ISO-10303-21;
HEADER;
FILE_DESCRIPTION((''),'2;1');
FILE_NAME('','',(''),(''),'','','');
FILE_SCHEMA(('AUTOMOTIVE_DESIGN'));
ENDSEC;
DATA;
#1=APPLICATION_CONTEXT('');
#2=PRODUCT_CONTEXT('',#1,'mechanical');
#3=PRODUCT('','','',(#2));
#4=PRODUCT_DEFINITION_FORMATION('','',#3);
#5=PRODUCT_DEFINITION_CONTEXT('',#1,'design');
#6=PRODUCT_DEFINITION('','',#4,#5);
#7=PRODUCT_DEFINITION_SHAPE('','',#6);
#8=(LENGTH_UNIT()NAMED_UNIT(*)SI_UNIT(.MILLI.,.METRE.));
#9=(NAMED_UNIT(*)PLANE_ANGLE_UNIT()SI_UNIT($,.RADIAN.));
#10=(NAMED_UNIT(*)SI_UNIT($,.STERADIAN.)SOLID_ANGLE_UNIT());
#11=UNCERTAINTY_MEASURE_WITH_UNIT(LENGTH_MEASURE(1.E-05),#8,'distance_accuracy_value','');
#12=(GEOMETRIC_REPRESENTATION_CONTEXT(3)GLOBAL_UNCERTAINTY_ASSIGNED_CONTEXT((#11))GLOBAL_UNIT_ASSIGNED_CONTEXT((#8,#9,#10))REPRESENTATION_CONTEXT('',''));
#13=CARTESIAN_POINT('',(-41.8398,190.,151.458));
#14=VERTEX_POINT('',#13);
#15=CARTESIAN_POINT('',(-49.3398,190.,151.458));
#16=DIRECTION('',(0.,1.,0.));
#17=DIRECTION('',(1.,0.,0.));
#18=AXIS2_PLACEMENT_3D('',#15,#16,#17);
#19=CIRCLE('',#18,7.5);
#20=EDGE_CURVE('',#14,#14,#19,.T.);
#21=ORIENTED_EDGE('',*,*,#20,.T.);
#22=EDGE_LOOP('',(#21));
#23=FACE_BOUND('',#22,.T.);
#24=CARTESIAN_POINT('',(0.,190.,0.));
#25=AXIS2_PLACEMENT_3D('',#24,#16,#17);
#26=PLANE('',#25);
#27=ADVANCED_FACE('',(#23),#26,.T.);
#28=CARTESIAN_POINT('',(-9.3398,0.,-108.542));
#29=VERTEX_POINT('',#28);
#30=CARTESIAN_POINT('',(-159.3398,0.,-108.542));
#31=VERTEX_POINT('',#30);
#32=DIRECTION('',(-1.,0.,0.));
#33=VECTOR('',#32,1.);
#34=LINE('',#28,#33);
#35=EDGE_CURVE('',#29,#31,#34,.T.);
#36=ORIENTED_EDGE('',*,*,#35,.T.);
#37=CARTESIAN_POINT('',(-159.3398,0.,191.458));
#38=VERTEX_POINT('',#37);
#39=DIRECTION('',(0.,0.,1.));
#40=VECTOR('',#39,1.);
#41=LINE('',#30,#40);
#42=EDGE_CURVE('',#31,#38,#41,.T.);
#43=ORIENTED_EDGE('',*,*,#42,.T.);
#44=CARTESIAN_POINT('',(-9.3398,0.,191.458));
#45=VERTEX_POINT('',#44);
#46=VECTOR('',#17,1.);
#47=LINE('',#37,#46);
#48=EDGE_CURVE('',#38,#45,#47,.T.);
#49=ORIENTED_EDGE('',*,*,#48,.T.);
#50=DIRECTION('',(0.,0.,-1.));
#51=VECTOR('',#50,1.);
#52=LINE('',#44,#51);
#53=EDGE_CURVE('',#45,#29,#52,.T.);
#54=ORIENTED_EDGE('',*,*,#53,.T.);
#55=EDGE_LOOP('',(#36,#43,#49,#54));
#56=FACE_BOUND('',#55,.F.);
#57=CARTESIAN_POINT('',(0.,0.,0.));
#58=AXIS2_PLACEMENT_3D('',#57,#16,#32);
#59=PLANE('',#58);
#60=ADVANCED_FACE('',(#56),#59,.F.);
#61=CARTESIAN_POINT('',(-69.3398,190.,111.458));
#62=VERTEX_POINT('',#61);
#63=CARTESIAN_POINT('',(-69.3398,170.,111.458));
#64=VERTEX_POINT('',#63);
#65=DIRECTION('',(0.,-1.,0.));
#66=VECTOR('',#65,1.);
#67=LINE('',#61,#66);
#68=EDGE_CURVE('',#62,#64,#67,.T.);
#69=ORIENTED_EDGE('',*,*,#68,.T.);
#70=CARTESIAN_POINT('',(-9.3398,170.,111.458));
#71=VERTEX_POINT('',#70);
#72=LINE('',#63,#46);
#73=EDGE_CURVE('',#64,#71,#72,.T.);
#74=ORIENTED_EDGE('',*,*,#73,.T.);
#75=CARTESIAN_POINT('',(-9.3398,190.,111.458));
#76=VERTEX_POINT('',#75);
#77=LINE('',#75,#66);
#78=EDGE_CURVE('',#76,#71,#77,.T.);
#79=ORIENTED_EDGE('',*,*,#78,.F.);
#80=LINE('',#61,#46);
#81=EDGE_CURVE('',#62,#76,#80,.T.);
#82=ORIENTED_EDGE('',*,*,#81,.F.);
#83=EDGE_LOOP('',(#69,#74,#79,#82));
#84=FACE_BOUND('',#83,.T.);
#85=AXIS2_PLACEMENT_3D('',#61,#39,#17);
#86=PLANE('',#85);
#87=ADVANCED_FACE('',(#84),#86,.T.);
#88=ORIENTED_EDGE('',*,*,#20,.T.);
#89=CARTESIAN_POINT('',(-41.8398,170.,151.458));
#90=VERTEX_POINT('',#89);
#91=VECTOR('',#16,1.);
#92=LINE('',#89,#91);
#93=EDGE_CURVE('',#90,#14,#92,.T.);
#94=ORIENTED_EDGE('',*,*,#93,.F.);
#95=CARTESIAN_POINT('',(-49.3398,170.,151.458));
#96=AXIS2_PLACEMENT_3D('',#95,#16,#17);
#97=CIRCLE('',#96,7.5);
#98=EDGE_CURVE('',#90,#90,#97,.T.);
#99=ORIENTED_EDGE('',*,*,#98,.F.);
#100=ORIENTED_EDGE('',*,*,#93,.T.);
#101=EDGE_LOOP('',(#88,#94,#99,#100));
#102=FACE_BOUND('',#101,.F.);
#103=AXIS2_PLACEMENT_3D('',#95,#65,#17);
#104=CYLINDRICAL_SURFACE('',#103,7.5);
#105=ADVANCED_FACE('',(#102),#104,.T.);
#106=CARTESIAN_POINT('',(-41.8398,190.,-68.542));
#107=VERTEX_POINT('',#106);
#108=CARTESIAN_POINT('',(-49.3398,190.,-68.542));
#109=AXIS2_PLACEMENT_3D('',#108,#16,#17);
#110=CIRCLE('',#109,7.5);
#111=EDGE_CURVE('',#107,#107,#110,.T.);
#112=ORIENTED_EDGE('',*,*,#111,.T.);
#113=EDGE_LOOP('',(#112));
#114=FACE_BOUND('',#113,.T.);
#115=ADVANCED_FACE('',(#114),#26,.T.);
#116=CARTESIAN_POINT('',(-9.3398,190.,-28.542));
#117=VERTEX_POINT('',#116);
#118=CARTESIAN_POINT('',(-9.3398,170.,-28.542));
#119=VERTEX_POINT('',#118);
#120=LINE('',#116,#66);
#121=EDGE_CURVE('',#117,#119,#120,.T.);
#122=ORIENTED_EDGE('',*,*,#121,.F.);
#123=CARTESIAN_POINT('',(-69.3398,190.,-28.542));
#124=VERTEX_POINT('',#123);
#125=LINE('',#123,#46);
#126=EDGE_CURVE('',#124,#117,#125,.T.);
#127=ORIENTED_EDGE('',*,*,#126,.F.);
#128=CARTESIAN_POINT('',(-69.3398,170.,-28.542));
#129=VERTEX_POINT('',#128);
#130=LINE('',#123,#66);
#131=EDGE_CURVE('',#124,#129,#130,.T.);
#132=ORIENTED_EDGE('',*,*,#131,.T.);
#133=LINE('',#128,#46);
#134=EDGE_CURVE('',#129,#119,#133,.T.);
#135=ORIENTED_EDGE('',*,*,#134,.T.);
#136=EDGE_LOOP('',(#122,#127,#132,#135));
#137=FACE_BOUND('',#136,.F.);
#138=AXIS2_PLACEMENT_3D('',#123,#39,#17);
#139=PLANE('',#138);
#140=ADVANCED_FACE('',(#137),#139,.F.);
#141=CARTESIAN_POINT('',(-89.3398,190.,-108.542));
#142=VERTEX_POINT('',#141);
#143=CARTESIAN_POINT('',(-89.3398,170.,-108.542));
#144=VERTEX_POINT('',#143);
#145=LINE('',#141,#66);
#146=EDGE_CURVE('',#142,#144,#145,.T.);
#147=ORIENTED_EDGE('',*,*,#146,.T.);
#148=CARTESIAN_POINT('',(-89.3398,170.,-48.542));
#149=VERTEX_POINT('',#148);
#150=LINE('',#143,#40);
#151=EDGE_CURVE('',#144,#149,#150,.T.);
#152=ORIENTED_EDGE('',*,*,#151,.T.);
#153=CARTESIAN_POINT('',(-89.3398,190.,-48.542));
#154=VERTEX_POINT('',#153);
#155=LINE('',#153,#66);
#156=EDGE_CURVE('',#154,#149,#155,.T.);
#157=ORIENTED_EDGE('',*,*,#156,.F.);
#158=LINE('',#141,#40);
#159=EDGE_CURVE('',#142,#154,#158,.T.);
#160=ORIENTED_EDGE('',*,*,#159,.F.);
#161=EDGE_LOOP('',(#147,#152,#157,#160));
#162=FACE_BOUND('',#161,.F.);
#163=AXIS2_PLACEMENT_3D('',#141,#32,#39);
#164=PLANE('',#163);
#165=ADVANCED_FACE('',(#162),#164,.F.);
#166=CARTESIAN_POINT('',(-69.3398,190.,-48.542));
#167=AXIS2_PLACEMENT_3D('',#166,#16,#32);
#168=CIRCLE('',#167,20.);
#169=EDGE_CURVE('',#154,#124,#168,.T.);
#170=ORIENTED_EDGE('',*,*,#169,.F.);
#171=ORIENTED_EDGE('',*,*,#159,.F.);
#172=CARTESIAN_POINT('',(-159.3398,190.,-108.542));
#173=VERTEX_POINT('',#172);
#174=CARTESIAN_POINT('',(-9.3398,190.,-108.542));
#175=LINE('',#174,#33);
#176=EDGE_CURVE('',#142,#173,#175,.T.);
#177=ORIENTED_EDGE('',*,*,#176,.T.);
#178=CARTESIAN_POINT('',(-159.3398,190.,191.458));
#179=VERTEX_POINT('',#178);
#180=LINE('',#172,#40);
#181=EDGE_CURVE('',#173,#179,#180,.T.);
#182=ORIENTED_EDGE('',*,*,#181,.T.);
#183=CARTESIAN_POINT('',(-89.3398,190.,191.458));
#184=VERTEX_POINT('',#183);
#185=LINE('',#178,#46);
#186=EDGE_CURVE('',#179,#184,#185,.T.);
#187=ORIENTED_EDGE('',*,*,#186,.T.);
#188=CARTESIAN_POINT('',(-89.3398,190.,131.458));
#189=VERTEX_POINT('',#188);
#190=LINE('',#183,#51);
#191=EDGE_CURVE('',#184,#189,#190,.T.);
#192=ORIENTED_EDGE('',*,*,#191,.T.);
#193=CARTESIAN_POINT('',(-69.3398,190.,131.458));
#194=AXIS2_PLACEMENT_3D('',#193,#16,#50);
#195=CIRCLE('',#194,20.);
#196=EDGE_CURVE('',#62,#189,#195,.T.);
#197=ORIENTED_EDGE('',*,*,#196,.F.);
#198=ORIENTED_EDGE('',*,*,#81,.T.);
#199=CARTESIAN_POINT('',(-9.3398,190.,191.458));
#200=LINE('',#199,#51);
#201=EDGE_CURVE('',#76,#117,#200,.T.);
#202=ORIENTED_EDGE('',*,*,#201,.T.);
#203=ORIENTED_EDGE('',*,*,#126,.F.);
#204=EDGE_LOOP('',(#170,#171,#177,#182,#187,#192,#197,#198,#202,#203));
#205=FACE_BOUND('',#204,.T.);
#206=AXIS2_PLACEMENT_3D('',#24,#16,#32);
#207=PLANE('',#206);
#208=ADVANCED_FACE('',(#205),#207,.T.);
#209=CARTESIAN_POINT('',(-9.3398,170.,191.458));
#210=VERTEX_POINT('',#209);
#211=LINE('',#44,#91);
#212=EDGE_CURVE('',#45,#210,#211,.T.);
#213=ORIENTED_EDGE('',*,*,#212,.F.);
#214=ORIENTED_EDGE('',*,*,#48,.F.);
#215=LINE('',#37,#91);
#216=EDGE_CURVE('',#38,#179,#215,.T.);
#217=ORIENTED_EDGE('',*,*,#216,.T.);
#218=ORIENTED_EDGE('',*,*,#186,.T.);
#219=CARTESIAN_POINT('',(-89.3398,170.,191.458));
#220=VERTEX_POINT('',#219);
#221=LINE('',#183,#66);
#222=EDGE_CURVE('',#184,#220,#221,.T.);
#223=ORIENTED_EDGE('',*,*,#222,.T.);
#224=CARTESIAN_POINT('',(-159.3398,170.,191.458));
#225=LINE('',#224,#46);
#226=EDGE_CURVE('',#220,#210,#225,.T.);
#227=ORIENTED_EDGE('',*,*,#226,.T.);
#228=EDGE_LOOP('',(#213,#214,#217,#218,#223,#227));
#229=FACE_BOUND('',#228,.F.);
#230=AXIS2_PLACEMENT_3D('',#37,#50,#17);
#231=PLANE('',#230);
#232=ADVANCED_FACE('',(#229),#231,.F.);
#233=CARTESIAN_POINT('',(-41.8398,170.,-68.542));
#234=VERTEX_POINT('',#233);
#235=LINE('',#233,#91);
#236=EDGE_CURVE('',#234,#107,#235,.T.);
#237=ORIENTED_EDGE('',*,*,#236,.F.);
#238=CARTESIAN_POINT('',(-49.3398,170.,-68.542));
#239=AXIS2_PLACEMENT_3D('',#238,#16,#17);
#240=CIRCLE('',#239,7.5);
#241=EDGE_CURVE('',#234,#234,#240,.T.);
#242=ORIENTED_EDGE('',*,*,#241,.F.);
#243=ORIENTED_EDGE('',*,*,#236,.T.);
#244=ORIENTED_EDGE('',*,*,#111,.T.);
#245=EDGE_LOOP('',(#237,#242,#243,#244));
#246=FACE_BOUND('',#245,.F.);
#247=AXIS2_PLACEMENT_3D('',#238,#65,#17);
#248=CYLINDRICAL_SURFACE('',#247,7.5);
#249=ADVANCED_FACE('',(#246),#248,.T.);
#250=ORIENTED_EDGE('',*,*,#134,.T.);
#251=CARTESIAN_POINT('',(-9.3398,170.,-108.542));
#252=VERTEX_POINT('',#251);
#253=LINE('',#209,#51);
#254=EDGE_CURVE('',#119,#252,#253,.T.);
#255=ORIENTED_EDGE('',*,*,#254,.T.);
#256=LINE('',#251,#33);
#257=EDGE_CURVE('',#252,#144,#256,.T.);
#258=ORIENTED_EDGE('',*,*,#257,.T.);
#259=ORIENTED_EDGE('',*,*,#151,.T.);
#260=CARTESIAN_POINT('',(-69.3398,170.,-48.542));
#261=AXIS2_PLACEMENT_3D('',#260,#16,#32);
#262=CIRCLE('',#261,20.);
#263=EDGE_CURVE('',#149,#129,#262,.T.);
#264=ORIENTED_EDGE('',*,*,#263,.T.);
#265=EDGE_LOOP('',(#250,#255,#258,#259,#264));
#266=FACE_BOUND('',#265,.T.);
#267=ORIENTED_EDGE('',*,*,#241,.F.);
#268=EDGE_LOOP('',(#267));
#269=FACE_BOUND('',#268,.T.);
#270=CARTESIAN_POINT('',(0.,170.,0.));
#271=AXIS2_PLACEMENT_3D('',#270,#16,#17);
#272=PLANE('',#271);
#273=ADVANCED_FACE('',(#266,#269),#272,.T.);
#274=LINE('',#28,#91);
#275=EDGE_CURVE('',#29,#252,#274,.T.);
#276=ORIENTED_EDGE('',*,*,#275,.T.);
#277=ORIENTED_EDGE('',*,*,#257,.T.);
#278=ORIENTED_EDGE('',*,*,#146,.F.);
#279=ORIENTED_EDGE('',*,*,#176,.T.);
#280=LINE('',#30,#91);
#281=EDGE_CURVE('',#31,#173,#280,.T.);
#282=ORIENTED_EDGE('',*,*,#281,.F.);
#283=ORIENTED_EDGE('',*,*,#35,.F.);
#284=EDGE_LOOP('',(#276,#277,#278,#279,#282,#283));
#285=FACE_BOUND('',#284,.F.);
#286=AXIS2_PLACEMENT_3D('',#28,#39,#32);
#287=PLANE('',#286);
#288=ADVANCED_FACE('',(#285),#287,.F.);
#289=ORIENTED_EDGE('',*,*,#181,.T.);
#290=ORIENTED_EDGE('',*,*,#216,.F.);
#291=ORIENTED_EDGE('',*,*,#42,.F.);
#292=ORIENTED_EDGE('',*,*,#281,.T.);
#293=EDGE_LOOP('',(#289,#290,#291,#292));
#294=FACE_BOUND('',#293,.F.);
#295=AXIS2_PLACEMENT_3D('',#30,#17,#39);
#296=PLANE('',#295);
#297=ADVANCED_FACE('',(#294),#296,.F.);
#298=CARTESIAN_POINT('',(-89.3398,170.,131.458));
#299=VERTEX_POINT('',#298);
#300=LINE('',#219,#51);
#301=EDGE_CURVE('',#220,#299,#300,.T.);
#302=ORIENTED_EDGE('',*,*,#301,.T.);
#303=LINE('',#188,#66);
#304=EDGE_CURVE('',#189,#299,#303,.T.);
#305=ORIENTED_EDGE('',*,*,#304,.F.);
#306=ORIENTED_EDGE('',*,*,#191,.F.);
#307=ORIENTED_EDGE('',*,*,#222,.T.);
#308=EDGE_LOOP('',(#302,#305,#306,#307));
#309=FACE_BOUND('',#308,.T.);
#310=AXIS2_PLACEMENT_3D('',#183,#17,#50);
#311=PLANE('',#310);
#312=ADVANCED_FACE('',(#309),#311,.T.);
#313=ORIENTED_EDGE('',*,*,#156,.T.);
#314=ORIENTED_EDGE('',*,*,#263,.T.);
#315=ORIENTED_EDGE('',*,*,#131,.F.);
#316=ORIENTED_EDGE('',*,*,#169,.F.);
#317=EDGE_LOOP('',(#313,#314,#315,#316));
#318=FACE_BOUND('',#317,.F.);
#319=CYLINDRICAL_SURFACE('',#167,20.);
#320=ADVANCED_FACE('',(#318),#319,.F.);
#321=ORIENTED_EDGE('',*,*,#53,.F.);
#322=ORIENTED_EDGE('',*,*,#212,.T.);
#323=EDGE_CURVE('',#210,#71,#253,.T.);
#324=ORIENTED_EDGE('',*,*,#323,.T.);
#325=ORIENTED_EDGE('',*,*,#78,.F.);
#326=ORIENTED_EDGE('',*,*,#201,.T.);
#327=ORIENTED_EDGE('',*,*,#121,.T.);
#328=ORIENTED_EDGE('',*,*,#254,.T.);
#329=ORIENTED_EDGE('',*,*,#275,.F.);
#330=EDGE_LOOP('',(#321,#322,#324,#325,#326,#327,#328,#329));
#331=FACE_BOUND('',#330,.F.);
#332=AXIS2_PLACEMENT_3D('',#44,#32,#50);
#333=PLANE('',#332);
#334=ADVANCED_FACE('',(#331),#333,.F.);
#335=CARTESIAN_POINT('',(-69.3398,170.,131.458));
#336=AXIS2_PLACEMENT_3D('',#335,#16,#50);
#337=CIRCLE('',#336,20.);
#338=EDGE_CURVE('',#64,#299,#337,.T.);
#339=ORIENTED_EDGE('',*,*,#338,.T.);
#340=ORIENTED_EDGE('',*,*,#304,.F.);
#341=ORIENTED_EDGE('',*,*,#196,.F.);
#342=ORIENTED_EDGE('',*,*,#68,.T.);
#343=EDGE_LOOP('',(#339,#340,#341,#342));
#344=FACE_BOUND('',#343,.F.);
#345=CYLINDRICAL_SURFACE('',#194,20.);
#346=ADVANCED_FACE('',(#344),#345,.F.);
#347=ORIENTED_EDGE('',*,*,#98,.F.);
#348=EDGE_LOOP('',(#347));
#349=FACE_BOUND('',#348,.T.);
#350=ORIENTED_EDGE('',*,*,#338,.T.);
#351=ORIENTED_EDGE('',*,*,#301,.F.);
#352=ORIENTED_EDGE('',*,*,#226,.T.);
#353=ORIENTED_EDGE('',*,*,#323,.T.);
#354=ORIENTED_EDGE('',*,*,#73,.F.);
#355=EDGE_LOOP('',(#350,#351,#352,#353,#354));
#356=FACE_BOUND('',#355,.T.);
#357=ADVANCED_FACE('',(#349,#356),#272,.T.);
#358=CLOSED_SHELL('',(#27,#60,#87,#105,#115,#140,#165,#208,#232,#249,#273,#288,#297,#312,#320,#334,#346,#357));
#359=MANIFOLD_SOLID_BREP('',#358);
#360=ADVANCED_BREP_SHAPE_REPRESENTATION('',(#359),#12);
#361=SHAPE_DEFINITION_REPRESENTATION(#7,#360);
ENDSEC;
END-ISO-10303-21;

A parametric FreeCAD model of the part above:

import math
import FreeCAD as App
import Part
import Sketcher
from FreeCAD import Vector
Q = App.Units.Quantity


def add_polygon(sketch, points):
    """Adds a closed chain of lines whose ends are joined by coincident constraints."""
    first, n = sketch.GeometryCount, len(points)
    for a, b in zip(points, points[1:] + points[:1]):
        sketch.addGeometry(Part.LineSegment(App.Vector(*a, 0), App.Vector(*b, 0)), False)
    for i in range(n):
        sketch.addConstraint(Sketcher.Constraint("Coincident", first + i, 2, first + (i + 1) % n, 1))

doc = App.newDocument("Part")
params = doc.addObject("Spreadsheet::Sheet", "Params")
for row, (alias, value) in enumerate([
    ("sketch1_width", "150 mm"),
    ("sketch1_height", "300 mm"),
    ("pad1_length", "190 mm"),
    ("sketch2_radius", "20 mm"),
    ("sketch2_width", "80 mm"),
    ("pocket1_length", "20 mm"),
    ("sketch3_diameter", "15 mm"),
    ("pad2_length", "20 mm"),
], start=1):
    params.set(f"A{row}", alias)
    params.set(f"B{row}", "=" + value)
    params.setAlias(f"B{row}", alias)

body = doc.addObject("PartDesign::Body", "Body")

# Sketch on XZ plane
sketch1 = body.newObject("Sketcher::SketchObject", "Sketch")
sketch1.AttachmentSupport = (doc.getObject("XZ_Plane"), [""])
sketch1.MapMode = "FlatFace"
add_polygon(sketch1, [(-159, -109), (-159, 191), (-9, 191), (-9, -109)])  # lines 0-3
sketch1.addConstraint([
    Sketcher.Constraint("Vertical", 0),
    Sketcher.Constraint("Horizontal", 1),
    Sketcher.Constraint("Vertical", 2),
    Sketcher.Constraint("Horizontal", 3),
    Sketcher.Constraint("DistanceX", 1, 1, 1, 2, Q("150 mm")),
    Sketcher.Constraint("DistanceY", 0, 1, 0, 2, Q("300 mm")),
    Sketcher.Constraint("DistanceY", -1, 1, 0, 2, Q("191.458 mm")),
    Sketcher.Constraint("DistanceX", 0, 2, -1, 1, Q("159.3398 mm")),
])
sketch1.setExpression("Constraints[8]", "Params.sketch1_width")
sketch1.setExpression("Constraints[9]", "Params.sketch1_height")
pad1 = body.newObject("PartDesign::Pad", "Pad")
pad1.Profile = sketch1
pad1.setExpression("Length", "Params.pad1_length")
pad1.Reversed = True

# Sketch on XZ plane
sketch2 = body.newObject("Sketcher::SketchObject", "Sketch001")
sketch2.AttachmentSupport = (doc.getObject("XZ_Plane"), [""])
sketch2.MapMode = "FlatFace"
sketch2.AttachmentOffset = App.Placement(Vector(0, 0, -190), App.Rotation())
sketch2.addGeometry([
    Part.LineSegment(Vector(-9, -29, 0), Vector(-9, -109, 0)),  # 0
    Part.LineSegment(Vector(-9, -109, 0), Vector(-89, -109, 0)),  # 1
    Part.LineSegment(Vector(-89, -109, 0), Vector(-89, -49, 0)),  # 2
    Part.ArcOfCircle(Part.Circle(Vector(-69, -49, 0), Vector(0, 0, 1), 20), math.radians(90), math.radians(180)),  # 3
    Part.LineSegment(Vector(-69, -29, 0), Vector(-9, -29, 0)),  # 4
    Part.LineSegment(Vector(-9, 191, 0), Vector(-9, 111, 0)),  # 5
    Part.LineSegment(Vector(-9, 111, 0), Vector(-69, 111, 0)),  # 6
    Part.ArcOfCircle(Part.Circle(Vector(-69, 131, 0), Vector(0, 0, 1), 20), math.radians(180), math.radians(270)),  # 7
    Part.LineSegment(Vector(-89, 131, 0), Vector(-89, 191, 0)),  # 8
    Part.LineSegment(Vector(-89, 191, 0), Vector(-9, 191, 0)),  # 9
], False)
sketch2.addConstraint([
    Sketcher.Constraint("Coincident", 0, 2, 1, 1),
    Sketcher.Constraint("Coincident", 1, 2, 2, 1),
    Sketcher.Constraint("Tangent", 2, 2, 3, 2),
    Sketcher.Constraint("Tangent", 3, 1, 4, 1),
    Sketcher.Constraint("Coincident", 4, 2, 0, 1),
    Sketcher.Constraint("Coincident", 5, 2, 6, 1),
    Sketcher.Constraint("Tangent", 6, 2, 7, 2),
    Sketcher.Constraint("Tangent", 7, 1, 8, 1),
    Sketcher.Constraint("Coincident", 8, 2, 9, 1),
    Sketcher.Constraint("Coincident", 9, 2, 5, 1),
    Sketcher.Constraint("Vertical", 0),
    Sketcher.Constraint("Horizontal", 1),
    Sketcher.Constraint("Vertical", 2),
    Sketcher.Constraint("Horizontal", 4),
    Sketcher.Constraint("Vertical", 5),
    Sketcher.Constraint("Horizontal", 6),
    Sketcher.Constraint("Vertical", 8),
    Sketcher.Constraint("Horizontal", 9),
    Sketcher.Constraint("Equal", 3, 7),
    Sketcher.Constraint("Vertical", 3, 3, 7, 3),
    Sketcher.Constraint("Vertical", 4, 2, 5, 2),
    Sketcher.Constraint("Equal", 9, 0),
    Sketcher.Constraint("Equal", 0, 5),
    Sketcher.Constraint("Radius", 3, Q("20 mm")),
    Sketcher.Constraint("DistanceX", 1, 2, 1, 1, Q("80 mm")),
    Sketcher.Constraint("DistanceY", 3, 3, 7, 3, Q("180 mm")),
    Sketcher.Constraint("DistanceY", 3, 3, -1, 1, Q("48.542 mm")),
    Sketcher.Constraint("DistanceX", 3, 3, -1, 1, Q("69.3398 mm")),
])
sketch2.setExpression("Constraints[23]", "Params.sketch2_radius")
sketch2.setExpression("Constraints[24]", "Params.sketch2_width")
pocket1 = body.newObject("PartDesign::Pocket", "Pocket")
pocket1.Profile = sketch2
pocket1.setExpression("Length", "Params.pocket1_length")
pocket1.Reversed = True

# Sketch on XZ plane
sketch3 = body.newObject("Sketcher::SketchObject", "Sketch002")
sketch3.AttachmentSupport = (doc.getObject("XZ_Plane"), [""])
sketch3.MapMode = "FlatFace"
sketch3.AttachmentOffset = App.Placement(Vector(0, 0, -170), App.Rotation())
sketch3.addGeometry([
    Part.Circle(Vector(-49, 151, 0), Vector(0, 0, 1), 8),
    Part.Circle(Vector(-49, -69, 0), Vector(0, 0, 1), 8),
], False)
sketch3.addConstraint([
    Sketcher.Constraint("Equal", 0, 1),
    Sketcher.Constraint("Vertical", 0, 3, 1, 3),
    Sketcher.Constraint("Diameter", 0, Q("15 mm")),
    Sketcher.Constraint("DistanceY", 1, 3, 0, 3, Q("220 mm")),
    Sketcher.Constraint("DistanceY", -1, 1, 0, 3, Q("151.458 mm")),
    Sketcher.Constraint("DistanceX", 0, 3, -1, 1, Q("49.3398 mm")),
])
sketch3.setExpression("Constraints[2]", "Params.sketch3_diameter")
pad2 = body.newObject("PartDesign::Pad", "Pad001")
pad2.Profile = sketch3
pad2.setExpression("Length", "Params.pad2_length")
pad2.Reversed = True

doc.recompute()
